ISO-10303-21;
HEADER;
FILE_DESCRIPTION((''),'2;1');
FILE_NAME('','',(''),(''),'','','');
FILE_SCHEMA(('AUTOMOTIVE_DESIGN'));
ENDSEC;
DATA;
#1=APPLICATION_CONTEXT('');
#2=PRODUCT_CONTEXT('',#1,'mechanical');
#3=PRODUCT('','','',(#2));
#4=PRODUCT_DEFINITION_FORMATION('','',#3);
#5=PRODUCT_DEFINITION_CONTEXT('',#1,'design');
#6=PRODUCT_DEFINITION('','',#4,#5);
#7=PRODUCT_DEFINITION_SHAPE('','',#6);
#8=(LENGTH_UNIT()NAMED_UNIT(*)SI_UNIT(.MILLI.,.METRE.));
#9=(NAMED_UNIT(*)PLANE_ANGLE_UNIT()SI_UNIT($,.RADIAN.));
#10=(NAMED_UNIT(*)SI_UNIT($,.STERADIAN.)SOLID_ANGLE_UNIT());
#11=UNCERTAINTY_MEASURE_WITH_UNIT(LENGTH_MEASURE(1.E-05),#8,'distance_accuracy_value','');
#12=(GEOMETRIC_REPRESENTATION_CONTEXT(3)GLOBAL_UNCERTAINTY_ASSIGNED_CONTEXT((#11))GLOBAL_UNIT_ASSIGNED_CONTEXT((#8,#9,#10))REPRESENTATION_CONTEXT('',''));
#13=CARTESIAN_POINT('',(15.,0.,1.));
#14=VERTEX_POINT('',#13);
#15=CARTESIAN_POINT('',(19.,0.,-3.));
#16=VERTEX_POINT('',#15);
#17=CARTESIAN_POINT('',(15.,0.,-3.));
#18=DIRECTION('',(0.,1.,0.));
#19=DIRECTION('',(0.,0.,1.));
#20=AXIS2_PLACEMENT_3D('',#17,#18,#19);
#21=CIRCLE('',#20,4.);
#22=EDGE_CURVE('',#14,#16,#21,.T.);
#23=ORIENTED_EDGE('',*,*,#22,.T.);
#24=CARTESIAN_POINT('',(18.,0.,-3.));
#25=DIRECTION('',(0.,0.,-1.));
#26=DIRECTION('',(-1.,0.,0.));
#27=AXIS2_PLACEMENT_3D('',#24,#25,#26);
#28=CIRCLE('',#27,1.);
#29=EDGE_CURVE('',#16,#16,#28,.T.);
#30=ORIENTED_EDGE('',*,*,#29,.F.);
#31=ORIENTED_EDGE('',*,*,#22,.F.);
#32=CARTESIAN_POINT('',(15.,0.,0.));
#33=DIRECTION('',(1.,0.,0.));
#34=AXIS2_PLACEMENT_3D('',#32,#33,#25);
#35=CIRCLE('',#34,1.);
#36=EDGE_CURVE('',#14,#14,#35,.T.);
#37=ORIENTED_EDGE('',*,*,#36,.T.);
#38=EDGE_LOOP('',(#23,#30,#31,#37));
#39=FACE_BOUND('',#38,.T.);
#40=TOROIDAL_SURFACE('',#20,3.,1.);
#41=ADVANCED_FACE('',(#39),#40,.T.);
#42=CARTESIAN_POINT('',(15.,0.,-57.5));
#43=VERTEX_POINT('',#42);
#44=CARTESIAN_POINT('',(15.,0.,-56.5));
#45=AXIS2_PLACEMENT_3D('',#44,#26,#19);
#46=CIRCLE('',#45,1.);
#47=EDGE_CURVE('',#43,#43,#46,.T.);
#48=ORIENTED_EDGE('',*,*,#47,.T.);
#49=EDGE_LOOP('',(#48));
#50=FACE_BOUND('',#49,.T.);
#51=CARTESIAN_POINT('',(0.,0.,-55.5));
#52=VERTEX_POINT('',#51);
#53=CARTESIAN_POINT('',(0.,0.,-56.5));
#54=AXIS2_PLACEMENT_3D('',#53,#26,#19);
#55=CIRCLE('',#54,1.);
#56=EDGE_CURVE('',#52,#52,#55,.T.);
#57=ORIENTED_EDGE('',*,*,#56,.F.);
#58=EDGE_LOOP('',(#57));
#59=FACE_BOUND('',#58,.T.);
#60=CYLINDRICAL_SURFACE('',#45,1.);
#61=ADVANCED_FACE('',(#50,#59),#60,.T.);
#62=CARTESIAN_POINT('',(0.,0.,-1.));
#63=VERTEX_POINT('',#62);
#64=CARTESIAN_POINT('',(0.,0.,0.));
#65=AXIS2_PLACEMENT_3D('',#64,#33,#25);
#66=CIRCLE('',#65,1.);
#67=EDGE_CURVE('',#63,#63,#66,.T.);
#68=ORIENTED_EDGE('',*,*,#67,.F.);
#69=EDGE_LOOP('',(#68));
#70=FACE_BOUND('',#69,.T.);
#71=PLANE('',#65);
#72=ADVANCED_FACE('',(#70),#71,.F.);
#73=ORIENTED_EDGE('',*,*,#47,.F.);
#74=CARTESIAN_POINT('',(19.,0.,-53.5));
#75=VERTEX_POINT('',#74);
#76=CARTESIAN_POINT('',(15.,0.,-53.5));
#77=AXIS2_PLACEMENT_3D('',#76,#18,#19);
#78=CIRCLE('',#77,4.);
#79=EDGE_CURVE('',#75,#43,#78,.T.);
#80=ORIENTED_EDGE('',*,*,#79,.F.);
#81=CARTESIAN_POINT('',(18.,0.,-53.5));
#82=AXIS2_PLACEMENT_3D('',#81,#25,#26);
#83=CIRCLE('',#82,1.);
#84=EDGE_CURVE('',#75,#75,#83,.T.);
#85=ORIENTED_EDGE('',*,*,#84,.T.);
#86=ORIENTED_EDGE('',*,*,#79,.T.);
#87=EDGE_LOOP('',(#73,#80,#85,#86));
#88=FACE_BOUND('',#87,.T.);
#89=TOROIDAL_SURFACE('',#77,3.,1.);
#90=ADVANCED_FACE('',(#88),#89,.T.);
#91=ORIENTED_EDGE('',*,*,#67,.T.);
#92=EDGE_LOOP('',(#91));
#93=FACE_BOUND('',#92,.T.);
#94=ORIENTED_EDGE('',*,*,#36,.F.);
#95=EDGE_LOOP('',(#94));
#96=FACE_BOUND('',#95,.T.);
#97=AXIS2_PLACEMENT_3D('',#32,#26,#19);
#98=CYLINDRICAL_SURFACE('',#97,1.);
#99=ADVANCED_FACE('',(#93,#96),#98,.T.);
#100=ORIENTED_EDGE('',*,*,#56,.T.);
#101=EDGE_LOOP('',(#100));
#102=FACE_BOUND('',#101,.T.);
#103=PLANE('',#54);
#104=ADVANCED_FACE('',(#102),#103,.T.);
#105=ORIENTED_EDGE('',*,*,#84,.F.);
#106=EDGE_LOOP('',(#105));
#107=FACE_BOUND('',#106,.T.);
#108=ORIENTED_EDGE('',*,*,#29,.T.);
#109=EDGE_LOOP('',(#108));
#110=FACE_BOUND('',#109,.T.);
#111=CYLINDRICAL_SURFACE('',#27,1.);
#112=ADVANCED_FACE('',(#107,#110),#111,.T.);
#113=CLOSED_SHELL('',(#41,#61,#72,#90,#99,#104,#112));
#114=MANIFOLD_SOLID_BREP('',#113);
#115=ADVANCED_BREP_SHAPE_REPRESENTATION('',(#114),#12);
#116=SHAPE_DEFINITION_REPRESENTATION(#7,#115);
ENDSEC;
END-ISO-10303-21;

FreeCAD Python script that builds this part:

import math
import FreeCAD as App
import Part
import Sketcher
from FreeCAD import Vector
Q = App.Units.Quantity

doc = App.newDocument("Part")
params = doc.addObject("Spreadsheet::Sheet", "Params")
for row, (alias, value) in enumerate([
    ("sketch1_diameter", "2 mm"),
    ("sketch2_radius", "3 mm"),
    ("sketch2_width", "15 mm"),
    ("sketch2_height", "50.5 mm"),
], start=1):
    params.set(f"A{row}", alias)
    params.set(f"B{row}", "=" + value)
    params.setAlias(f"B{row}", alias)

body = doc.addObject("PartDesign::Body", "Body")

sketch1 = body.newObject("Sketcher::SketchObject", "Sketch")
sketch1.AttachmentSupport = (doc.getObject("YZ_Plane"), [""])
sketch1.MapMode = "FlatFace"
sketch1.addGeometry(Part.Circle(Vector(0, 0, 0), Vector(0, 0, 1), 1), False)
sketch1.addConstraint(Sketcher.Constraint("Coincident", 0, 3, -1, 1))
sketch1.addConstraint(Sketcher.Constraint("Diameter", 0, Q("2 mm")))
sketch1.setExpression("Constraints[1]", "Params.sketch1_diameter")

sketch2 = body.newObject("Sketcher::SketchObject", "Sketch001")
sketch2.AttachmentSupport = (doc.getObject("XZ_Plane"), [""])
sketch2.MapMode = "FlatFace"
sketch2.addGeometry(Part.LineSegment(Vector(0, 0, 0), Vector(15, 0, 0)), False)
sketch2.addGeometry(Part.ArcOfCircle(Part.Circle(Vector(15, -3, 0), Vector(0, 0, 1), 3), math.radians(0), math.radians(90)), False)
sketch2.addGeometry(Part.LineSegment(Vector(18, -3, 0), Vector(18, -53.5, 0)), False)
sketch2.addGeometry(Part.ArcOfCircle(Part.Circle(Vector(15, -53.5, 0), Vector(0, 0, 1), 3), math.radians(-90), math.radians(0)), False)
sketch2.addGeometry(Part.LineSegment(Vector(15, -56.5, 0), Vector(0, -56.5, 0)), False)
sketch2.addConstraint(Sketcher.Constraint("Tangent", 0, 2, 1, 2))
sketch2.addConstraint(Sketcher.Constraint("Tangent", 1, 1, 2, 1))
sketch2.addConstraint(Sketcher.Constraint("Tangent", 2, 2, 3, 2))
sketch2.addConstraint(Sketcher.Constraint("Tangent", 3, 1, 4, 1))
sketch2.addConstraint(Sketcher.Constraint("Horizontal", 0))
sketch2.addConstraint(Sketcher.Constraint("Vertical", 2))
sketch2.addConstraint(Sketcher.Constraint("Horizontal", 4))
sketch2.addConstraint(Sketcher.Constraint("Coincident", 0, 1, -1, 1))
sketch2.addConstraint(Sketcher.Constraint("Equal", 1, 3))
sketch2.addConstraint(Sketcher.Constraint("PointOnObject", 4, 2, -2))
sketch2.addConstraint(Sketcher.Constraint("Radius", 1, Q("3 mm")))
sketch2.addConstraint(Sketcher.Constraint("DistanceX", 0, 1, 0, 2, Q("15 mm")))
sketch2.addConstraint(Sketcher.Constraint("DistanceY", 2, 2, 2, 1, Q("50.5 mm")))
sketch2.setExpression("Constraints[10]", "Params.sketch2_radius")
sketch2.setExpression("Constraints[11]", "Params.sketch2_width")
sketch2.setExpression("Constraints[12]", "Params.sketch2_height")
doc.recompute()

additivepipe = body.newObject("PartDesign::AdditivePipe", "AdditivePipe")
additivepipe.Profile = sketch1
additivepipe.Spine = (sketch2, ["Edge1", "Edge2", "Edge3", "Edge4", "Edge5"])

doc.recompute()
